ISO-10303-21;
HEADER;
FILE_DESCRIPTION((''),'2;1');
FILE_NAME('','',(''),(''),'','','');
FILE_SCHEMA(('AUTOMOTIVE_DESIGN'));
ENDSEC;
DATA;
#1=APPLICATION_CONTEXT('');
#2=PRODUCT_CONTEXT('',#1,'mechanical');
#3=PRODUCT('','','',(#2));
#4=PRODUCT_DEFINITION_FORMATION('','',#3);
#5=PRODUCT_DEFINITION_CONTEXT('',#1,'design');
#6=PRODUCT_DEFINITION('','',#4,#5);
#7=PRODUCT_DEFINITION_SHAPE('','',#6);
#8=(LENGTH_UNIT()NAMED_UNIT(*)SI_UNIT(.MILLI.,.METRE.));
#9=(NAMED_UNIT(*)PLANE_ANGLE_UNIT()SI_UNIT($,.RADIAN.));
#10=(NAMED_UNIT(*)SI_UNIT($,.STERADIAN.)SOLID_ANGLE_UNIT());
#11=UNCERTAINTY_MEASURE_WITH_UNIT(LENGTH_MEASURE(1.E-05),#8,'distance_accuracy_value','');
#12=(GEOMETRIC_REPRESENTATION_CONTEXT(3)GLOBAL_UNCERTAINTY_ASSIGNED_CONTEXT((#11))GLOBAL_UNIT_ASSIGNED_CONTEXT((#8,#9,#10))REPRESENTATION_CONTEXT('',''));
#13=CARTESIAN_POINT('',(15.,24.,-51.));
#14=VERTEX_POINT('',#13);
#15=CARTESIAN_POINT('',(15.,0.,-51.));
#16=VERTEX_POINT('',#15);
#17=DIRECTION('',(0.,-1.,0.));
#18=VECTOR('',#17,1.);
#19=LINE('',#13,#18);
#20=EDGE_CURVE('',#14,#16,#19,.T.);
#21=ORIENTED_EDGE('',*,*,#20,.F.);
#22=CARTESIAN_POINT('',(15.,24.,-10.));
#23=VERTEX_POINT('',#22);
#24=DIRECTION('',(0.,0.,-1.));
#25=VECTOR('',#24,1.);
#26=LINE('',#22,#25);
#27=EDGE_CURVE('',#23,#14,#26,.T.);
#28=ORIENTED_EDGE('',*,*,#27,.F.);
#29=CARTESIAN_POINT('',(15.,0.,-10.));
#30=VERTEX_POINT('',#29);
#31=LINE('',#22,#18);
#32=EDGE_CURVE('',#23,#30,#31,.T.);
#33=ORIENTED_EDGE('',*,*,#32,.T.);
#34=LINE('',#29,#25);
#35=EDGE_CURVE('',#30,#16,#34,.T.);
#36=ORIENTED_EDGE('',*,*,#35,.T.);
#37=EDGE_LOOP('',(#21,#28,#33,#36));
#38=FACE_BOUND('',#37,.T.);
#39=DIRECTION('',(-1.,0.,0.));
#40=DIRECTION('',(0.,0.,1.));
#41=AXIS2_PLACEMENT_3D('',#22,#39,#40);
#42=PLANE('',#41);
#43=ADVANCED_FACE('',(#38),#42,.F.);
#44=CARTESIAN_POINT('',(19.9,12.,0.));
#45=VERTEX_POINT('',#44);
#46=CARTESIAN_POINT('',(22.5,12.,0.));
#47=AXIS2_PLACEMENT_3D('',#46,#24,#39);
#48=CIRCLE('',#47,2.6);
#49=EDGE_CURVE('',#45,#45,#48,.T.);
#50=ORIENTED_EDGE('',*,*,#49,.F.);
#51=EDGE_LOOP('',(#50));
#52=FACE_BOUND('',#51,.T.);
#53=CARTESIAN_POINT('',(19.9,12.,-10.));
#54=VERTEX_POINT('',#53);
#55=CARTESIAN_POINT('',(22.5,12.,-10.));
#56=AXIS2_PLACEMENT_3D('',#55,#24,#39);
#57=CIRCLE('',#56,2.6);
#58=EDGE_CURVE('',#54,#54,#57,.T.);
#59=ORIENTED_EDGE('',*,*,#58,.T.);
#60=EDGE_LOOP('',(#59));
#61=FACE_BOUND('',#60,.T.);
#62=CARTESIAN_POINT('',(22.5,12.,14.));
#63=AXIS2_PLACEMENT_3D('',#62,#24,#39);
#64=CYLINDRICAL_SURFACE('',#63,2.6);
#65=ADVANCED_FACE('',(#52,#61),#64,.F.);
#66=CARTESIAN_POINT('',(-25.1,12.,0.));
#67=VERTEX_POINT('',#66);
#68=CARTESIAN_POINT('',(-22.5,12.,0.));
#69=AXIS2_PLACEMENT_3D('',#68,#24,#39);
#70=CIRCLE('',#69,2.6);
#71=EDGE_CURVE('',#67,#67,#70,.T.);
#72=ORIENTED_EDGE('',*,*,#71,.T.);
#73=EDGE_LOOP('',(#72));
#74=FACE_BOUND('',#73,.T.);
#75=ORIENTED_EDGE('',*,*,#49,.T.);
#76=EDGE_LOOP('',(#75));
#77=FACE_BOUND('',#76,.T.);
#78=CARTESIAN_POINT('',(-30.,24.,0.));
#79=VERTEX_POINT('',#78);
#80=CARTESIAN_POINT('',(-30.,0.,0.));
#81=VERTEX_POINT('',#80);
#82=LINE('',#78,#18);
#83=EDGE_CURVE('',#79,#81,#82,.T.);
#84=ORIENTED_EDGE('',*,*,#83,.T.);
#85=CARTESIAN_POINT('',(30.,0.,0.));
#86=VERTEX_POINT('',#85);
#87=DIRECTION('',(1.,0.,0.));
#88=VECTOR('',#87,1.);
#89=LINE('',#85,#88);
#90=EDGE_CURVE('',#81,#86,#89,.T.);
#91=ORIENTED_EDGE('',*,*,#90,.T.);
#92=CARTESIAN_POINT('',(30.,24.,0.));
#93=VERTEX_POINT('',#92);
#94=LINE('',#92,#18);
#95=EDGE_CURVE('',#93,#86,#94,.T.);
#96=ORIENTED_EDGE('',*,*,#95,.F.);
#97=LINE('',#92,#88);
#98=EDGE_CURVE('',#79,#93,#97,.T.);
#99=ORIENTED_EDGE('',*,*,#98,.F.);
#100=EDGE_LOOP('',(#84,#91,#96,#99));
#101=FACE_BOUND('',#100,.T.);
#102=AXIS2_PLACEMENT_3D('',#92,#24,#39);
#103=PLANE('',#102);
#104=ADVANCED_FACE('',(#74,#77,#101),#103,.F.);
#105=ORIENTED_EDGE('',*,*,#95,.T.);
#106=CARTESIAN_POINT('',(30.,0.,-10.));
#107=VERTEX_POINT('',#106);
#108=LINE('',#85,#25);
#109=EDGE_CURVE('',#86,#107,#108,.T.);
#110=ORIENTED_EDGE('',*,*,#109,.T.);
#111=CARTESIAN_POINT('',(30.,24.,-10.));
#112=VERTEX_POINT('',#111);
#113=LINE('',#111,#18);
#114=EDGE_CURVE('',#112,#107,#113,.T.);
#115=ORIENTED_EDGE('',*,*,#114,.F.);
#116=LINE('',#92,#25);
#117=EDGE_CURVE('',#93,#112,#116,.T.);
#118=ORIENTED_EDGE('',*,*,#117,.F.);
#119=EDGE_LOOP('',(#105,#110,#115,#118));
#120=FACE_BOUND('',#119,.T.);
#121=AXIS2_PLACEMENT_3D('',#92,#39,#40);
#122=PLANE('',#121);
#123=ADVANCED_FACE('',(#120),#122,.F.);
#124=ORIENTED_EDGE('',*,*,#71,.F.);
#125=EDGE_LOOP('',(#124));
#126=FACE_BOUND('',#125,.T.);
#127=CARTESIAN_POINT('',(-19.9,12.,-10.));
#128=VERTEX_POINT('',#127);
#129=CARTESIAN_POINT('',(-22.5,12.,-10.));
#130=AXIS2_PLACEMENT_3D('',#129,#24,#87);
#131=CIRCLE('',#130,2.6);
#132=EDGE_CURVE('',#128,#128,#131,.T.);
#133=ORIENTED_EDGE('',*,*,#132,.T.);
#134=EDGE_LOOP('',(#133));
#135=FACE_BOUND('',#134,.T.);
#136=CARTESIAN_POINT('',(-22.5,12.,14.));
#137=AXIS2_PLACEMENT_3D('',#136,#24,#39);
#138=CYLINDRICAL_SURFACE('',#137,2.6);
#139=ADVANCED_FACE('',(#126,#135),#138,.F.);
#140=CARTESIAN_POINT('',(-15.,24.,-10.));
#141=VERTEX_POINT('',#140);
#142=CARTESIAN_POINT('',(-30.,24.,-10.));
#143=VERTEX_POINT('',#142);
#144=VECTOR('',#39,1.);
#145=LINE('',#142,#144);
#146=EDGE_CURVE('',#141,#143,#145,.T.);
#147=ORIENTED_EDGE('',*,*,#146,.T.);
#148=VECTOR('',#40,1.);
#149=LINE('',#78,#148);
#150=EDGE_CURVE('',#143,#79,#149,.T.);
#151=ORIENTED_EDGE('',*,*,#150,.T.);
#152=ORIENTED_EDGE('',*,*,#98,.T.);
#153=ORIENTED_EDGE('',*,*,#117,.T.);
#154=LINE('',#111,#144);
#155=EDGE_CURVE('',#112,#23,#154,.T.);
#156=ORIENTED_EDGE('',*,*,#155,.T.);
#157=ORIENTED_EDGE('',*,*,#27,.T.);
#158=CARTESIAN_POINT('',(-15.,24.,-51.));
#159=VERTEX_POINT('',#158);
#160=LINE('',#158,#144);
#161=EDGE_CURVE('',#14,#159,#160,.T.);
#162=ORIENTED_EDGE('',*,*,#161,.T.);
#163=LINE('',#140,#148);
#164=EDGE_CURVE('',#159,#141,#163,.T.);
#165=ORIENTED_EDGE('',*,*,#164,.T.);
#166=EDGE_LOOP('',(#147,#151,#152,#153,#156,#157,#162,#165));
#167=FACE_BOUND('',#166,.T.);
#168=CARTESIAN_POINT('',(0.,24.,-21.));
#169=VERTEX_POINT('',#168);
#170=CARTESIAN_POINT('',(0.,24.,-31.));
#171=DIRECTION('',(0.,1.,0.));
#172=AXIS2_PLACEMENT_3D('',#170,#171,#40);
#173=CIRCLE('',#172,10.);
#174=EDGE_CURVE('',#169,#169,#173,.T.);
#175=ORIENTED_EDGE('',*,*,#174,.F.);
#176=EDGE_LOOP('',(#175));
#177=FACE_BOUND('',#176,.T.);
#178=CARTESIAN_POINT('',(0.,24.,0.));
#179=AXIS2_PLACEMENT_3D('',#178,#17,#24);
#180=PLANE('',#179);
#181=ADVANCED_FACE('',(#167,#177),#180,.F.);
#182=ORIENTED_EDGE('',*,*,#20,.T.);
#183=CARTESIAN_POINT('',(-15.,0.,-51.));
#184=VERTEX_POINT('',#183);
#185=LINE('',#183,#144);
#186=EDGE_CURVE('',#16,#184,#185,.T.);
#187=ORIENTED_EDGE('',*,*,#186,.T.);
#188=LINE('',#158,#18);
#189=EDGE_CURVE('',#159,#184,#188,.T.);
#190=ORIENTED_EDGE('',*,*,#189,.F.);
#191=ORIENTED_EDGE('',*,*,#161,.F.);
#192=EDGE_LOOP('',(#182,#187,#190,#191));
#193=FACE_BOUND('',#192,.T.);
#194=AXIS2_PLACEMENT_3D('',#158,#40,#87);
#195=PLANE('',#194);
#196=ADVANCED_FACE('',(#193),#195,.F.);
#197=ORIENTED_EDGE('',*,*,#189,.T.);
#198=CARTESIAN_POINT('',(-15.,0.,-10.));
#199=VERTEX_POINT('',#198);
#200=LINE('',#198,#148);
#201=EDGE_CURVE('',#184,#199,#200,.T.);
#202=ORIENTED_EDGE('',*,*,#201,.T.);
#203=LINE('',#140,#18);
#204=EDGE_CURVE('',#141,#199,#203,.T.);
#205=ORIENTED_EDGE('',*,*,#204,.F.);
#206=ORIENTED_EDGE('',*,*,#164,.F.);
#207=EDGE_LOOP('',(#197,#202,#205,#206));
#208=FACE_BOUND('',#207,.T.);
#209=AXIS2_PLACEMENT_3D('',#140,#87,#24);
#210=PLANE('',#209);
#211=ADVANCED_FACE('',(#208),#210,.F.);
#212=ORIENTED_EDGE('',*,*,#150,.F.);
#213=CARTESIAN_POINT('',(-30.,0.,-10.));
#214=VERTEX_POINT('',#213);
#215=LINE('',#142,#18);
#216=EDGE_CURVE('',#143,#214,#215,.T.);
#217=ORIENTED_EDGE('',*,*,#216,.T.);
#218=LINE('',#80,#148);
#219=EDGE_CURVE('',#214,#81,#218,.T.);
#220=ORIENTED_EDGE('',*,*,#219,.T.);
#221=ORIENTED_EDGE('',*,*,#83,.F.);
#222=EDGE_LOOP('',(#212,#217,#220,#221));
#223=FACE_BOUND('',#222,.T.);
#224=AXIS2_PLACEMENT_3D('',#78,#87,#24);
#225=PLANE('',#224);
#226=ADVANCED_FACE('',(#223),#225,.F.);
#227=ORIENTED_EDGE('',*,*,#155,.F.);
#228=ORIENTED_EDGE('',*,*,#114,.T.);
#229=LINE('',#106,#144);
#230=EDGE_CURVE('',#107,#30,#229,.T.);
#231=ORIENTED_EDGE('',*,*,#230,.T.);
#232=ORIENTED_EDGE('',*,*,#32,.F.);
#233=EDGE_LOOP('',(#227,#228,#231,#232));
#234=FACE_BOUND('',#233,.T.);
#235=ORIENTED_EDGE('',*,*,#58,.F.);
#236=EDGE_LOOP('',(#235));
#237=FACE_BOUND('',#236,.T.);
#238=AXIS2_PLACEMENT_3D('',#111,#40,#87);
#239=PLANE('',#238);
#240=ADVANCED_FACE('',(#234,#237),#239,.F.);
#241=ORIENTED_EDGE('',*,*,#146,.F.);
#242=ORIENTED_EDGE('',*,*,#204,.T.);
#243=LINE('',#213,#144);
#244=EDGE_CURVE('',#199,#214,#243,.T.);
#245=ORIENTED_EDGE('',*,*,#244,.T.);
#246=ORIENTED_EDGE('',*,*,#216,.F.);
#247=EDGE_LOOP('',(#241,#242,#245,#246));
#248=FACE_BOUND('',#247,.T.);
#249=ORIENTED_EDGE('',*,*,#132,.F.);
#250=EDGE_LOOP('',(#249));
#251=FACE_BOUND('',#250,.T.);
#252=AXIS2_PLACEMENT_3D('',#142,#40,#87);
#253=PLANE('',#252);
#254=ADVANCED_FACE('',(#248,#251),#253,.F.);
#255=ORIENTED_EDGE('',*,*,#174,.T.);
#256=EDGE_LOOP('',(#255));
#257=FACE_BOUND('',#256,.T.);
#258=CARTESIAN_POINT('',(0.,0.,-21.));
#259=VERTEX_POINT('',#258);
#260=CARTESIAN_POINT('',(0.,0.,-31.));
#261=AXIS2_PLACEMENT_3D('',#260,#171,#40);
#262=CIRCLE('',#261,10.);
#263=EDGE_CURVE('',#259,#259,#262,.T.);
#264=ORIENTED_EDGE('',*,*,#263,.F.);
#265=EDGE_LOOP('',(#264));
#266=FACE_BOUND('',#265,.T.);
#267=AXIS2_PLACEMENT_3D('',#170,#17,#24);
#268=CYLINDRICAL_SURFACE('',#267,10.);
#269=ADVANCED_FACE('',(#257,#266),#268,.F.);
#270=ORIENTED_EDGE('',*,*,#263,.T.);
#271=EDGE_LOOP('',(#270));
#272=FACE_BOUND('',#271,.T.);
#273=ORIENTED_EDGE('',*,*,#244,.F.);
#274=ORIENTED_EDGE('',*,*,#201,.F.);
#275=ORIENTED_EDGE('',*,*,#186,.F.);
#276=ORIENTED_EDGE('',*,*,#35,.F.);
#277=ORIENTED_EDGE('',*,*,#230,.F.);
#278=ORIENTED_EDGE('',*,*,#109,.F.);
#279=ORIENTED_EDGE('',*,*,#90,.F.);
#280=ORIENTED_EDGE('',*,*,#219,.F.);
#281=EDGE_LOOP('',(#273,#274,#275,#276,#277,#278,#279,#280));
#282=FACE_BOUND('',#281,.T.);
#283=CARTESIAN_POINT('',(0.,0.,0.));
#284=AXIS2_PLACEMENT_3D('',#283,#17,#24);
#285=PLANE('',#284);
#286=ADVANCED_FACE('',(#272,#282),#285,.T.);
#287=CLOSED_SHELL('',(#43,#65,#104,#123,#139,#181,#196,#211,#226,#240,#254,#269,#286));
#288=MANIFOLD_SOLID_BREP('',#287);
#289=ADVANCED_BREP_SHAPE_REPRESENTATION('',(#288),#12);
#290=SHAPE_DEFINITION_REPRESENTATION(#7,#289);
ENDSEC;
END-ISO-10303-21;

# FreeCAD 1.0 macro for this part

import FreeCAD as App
import Part
import Sketcher
from FreeCAD import Vector
Q = App.Units.Quantity


def add_polygon(sketch, points):
    """Adds a closed chain of lines whose ends are joined by coincident constraints."""
    first, n = sketch.GeometryCount, len(points)
    for a, b in zip(points, points[1:] + points[:1]):
        sketch.addGeometry(Part.LineSegment(App.Vector(*a, 0), App.Vector(*b, 0)), False)
    for i in range(n):
        sketch.addConstraint(Sketcher.Constraint("Coincident", first + i, 2, first + (i + 1) % n, 1))

doc = App.newDocument("Part")
body = doc.addObject("PartDesign::Body", "Body")

sketch1 = doc.addObject("Sketcher::SketchObject", "Sketch")
body.addObject(sketch1)
sketch1.AttachmentSupport = (doc.XZ_Plane, [""])
sketch1.MapMode = "FlatFace"
add_polygon(sketch1, [(-30, 0), (30, 0), (30, -10), (15, -10), (15, -51), (-15, -51), (-15, -10), (-30, -10)])
sketch1.addGeometry(Part.Circle(Vector(0, -31, 0), Vector(0, 0, 1), 10), False)
sketch1.addConstraint([
    Sketcher.Constraint("Horizontal", 0),
    Sketcher.Constraint("Vertical", 1),
    Sketcher.Constraint("Horizontal", 2),
    Sketcher.Constraint("Vertical", 3),
    Sketcher.Constraint("Horizontal", 4),
    Sketcher.Constraint("Vertical", 5),
    Sketcher.Constraint("Horizontal", 6),
    Sketcher.Constraint("Vertical", 7),
    Sketcher.Constraint("Symmetric", 0, 2, 7, 2, -1, 1),
    Sketcher.Constraint("Symmetric", 2, 2, 5, 2, -2),
    Sketcher.Constraint("PointOnObject", 8, 3, -2),
    Sketcher.Constraint("Diameter", 8, Q("20 mm")),
    Sketcher.Constraint("DistanceX", 0, 1, 0, 2, Q("60 mm")),
    Sketcher.Constraint("DistanceX", 2, 2, 2, 1, Q("15 mm")),
    Sketcher.Constraint("DistanceY", 1, 2, 1, 1, Q("10 mm")),
    Sketcher.Constraint("DistanceY", 3, 2, 3, 1, Q("41 mm")),
    Sketcher.Constraint("DistanceY", 8, 3, -1, 1, Q("31 mm")),
])
pad1 = doc.addObject("PartDesign::Pad", "Pad")
body.addObject(pad1)
pad1.Profile = sketch1
pad1.Length = 24
pad1.Reversed = True

sketch2 = doc.addObject("Sketcher::SketchObject", "Sketch001")
body.addObject(sketch2)
sketch2.AttachmentSupport = (doc.XY_Plane, [""])
sketch2.MapMode = "FlatFace"
sketch2.AttachmentOffset = App.Placement(Vector(0, 0, -10), App.Rotation())
sketch2.addGeometry([
    Part.Circle(Vector(22.5, 12, 0), Vector(0, 0, 1), 2.6),
    Part.Circle(Vector(-22.5, 12, 0), Vector(0, 0, 1), 2.6),
], False)
sketch2.addConstraint([
    Sketcher.Constraint("Equal", 0, 1),
    Sketcher.Constraint("Symmetric", 0, 3, 1, 3, -2),
    Sketcher.Constraint("Diameter", 0, Q("5.2 mm")),
    Sketcher.Constraint("DistanceY", -1, 1, 0, 3, Q("12 mm")),
    Sketcher.Constraint("DistanceX", 1, 3, 0, 3, Q("45 mm")),
])
pocket1 = doc.addObject("PartDesign::Pocket", "Pocket")
body.addObject(pocket1)
pocket1.Profile = sketch2
pocket1.Length = 24
pocket1.Reversed = True

doc.recompute()
